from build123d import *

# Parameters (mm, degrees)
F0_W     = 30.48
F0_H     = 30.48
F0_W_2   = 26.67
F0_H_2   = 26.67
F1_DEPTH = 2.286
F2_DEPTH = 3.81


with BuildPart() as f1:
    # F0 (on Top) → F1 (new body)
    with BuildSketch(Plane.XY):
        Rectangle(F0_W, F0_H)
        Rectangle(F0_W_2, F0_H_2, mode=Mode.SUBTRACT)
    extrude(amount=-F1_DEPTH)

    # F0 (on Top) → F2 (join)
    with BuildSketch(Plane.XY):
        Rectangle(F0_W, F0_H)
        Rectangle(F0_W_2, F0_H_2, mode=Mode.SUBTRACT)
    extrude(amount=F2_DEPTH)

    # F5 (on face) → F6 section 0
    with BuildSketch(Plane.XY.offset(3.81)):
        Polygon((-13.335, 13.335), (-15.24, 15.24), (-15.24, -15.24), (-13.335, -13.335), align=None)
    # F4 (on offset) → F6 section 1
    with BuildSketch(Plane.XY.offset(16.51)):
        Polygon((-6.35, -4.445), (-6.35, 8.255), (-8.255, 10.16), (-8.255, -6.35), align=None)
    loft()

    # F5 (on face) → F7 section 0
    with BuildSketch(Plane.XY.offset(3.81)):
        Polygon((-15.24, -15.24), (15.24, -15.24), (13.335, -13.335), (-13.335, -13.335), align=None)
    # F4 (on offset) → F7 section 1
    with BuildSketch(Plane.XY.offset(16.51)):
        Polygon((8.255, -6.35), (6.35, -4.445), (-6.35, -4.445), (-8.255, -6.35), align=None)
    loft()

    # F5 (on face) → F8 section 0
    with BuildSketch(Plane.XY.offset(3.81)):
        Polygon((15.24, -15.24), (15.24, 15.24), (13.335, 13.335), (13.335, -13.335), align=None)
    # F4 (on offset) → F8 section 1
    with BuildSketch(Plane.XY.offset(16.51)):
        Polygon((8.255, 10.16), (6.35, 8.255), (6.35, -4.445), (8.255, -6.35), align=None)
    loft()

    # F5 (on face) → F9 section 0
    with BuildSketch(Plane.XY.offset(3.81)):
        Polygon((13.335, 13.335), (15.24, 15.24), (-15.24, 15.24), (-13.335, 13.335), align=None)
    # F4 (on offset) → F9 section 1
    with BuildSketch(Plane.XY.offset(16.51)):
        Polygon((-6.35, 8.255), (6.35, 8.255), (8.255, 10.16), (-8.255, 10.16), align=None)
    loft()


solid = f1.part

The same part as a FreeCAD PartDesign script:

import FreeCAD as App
import Part
import Sketcher
Q = App.Units.Quantity


def add_polygon(sketch, points):
    """Adds a closed chain of lines whose ends are joined by coincident constraints."""
    first, n = sketch.GeometryCount, len(points)
    for a, b in zip(points, points[1:] + points[:1]):
        sketch.addGeometry(Part.LineSegment(App.Vector(*a, 0), App.Vector(*b, 0)), False)
    for i in range(n):
        sketch.addConstraint(Sketcher.Constraint("Coincident", first + i, 2, first + (i + 1) % n, 1))

doc = App.newDocument("Part")
body = doc.addObject("PartDesign::Body", "Body")

# Sketch on XY plane
sketch1 = body.newObject("Sketcher::SketchObject", "Sketch")
sketch1.AttachmentSupport = (doc.getObject("XY_Plane"), [""])
sketch1.MapMode = "FlatFace"
add_polygon(sketch1, [(-15, 15), (-15, -15), (15, -15), (15, 15)])  # lines 0-3
add_polygon(sketch1, [(13, -13), (-13, -13), (-13, 13), (13, 13)])  # lines 4-7
sketch1.addConstraint(Sketcher.Constraint("Vertical", 0))
sketch1.addConstraint(Sketcher.Constraint("Horizontal", 1))
sketch1.addConstraint(Sketcher.Constraint("Vertical", 2))
sketch1.addConstraint(Sketcher.Constraint("Horizontal", 3))
sketch1.addConstraint(Sketcher.Constraint("Horizontal", 4))
sketch1.addConstraint(Sketcher.Constraint("Vertical", 5))
sketch1.addConstraint(Sketcher.Constraint("Horizontal", 6))
sketch1.addConstraint(Sketcher.Constraint("Vertical", 7))
sketch1.addConstraint(Sketcher.Constraint("Symmetric", 0, 2, 2, 2, -1, 1))
sketch1.addConstraint(Sketcher.Constraint("Symmetric", 4, 2, 6, 2, -1, 1))
sketch1.addConstraint(Sketcher.Constraint("Equal", 3, 0))
sketch1.addConstraint(Sketcher.Constraint("Equal", 6, 5))
sketch1.addConstraint(Sketcher.Constraint("DistanceX", 1, 1, 1, 2, Q("1.2 in")))
sketch1.addConstraint(Sketcher.Constraint("DistanceX", 4, 2, 4, 1, Q("1.05 in")))
pad1 = body.newObject("PartDesign::Pad", "Pad")
pad1.Profile = sketch1
pad1.Length = Q("0.09 in")
pad1.Reversed = True

# Sketch on XY plane
sketch2 = body.newObject("Sketcher::SketchObject", "Sketch001")
sketch2.AttachmentSupport = (doc.getObject("XY_Plane"), [""])
sketch2.MapMode = "FlatFace"
add_polygon(sketch2, [(-15, 15), (-15, -15), (15, -15), (15, 15)])  # lines 0-3
add_polygon(sketch2, [(13, -13), (-13, -13), (-13, 13), (13, 13)])  # lines 4-7
sketch2.addConstraint(Sketcher.Constraint("Vertical", 0))
sketch2.addConstraint(Sketcher.Constraint("Horizontal", 1))
sketch2.addConstraint(Sketcher.Constraint("Vertical", 2))
sketch2.addConstraint(Sketcher.Constraint("Horizontal", 3))
sketch2.addConstraint(Sketcher.Constraint("Horizontal", 4))
sketch2.addConstraint(Sketcher.Constraint("Vertical", 5))
sketch2.addConstraint(Sketcher.Constraint("Horizontal", 6))
sketch2.addConstraint(Sketcher.Constraint("Vertical", 7))
sketch2.addConstraint(Sketcher.Constraint("Symmetric", 0, 2, 2, 2, -1, 1))
sketch2.addConstraint(Sketcher.Constraint("Symmetric", 4, 2, 6, 2, -1, 1))
sketch2.addConstraint(Sketcher.Constraint("Equal", 3, 0))
sketch2.addConstraint(Sketcher.Constraint("Equal", 6, 5))
sketch2.addConstraint(Sketcher.Constraint("DistanceX", 1, 1, 1, 2, Q("1.2 in")))
sketch2.addConstraint(Sketcher.Constraint("DistanceX", 4, 2, 4, 1, Q("1.05 in")))
pad2 = body.newObject("PartDesign::Pad", "Pad001")
pad2.Profile = sketch2
pad2.Length = Q("0.15 in")

# Sketch on XY plane
sketch3 = body.newObject("Sketcher::SketchObject", "Sketch002")
sketch3.AttachmentSupport = (doc.getObject("XY_Plane"), [""])
sketch3.MapMode = "FlatFace"
sketch3.AttachmentOffset = App.Placement(App.Vector(0, 0, 0.15 * 25.4), App.Rotation())
add_polygon(sketch3, [(-13.3, 13.3), (-15.2, 15.2), (-15.2, -15.2), (-13.3, -13.3)])  # lines 0-3
sketch3.addConstraint(Sketcher.Constraint("Vertical", 1))
sketch3.addConstraint(Sketcher.Constraint("Vertical", 3))
sketch3.addConstraint(Sketcher.Constraint("Perpendicular", 0, 2))
sketch3.addConstraint(Sketcher.Constraint("Equal", 0, 2))
sketch3.addConstraint(Sketcher.Constraint("DistanceY", 1, 2, 1, 1, Q("1.2 in")))
sketch3.addConstraint(Sketcher.Constraint("DistanceY", 3, 1, 3, 2, Q("1.05 in")))
sketch3.addConstraint(Sketcher.Constraint("DistanceX", 0, 2, -1, 1, Q("0.6 in")))
sketch3.addConstraint(Sketcher.Constraint("DistanceY", -1, 1, 0, 2, Q("0.6 in")))

# Sketch on XY plane
sketch4 = body.newObject("Sketcher::SketchObject", "Sketch003")
sketch4.AttachmentSupport = (doc.getObject("XY_Plane"), [""])
sketch4.MapMode = "FlatFace"
sketch4.AttachmentOffset = App.Placement(App.Vector(0, 0, 0.65 * 25.4), App.Rotation())
add_polygon(sketch4, [(-6.3, -4.4), (-6.3, 8.3), (-8.3, 10.2), (-8.3, -6.3)])  # lines 0-3
sketch4.addConstraint(Sketcher.Constraint("Vertical", 0))
sketch4.addConstraint(Sketcher.Constraint("Vertical", 2))
sketch4.addConstraint(Sketcher.Constraint("Perpendicular", 1, 3))
sketch4.addConstraint(Sketcher.Constraint("Equal", 1, 3))
sketch4.addConstraint(Sketcher.Constraint("DistanceY", 0, 1, 0, 2, Q("0.5 in")))
sketch4.addConstraint(Sketcher.Constraint("DistanceY", 2, 2, 2, 1, Q("0.65 in")))
sketch4.addConstraint(Sketcher.Constraint("DistanceY", -1, 1, 1, 2, Q("0.4 in")))
sketch4.addConstraint(Sketcher.Constraint("DistanceX", 0, 2, -1, 1, Q("0.25 in")))

additiveloft = body.newObject("PartDesign::AdditiveLoft", "AdditiveLoft")
additiveloft.Profile = sketch3
additiveloft.Sections = [sketch4]

# Sketch on XY plane
sketch5 = body.newObject("Sketcher::SketchObject", "Sketch004")
sketch5.AttachmentSupport = (doc.getObject("XY_Plane"), [""])
sketch5.MapMode = "FlatFace"
sketch5.AttachmentOffset = App.Placement(App.Vector(0, 0, 0.15 * 25.4), App.Rotation())
add_polygon(sketch5, [(-15.2, -15.2), (15.2, -15.2), (13.3, -13.3), (-13.3, -13.3)])  # lines 0-3
sketch5.addConstraint(Sketcher.Constraint("Horizontal", 0))
sketch5.addConstraint(Sketcher.Constraint("Horizontal", 2))
sketch5.addConstraint(Sketcher.Constraint("Perpendicular", 1, 3))
sketch5.addConstraint(Sketcher.Constraint("Equal", 1, 3))
sketch5.addConstraint(Sketcher.Constraint("DistanceX", 0, 1, 0, 2, Q("1.2 in")))
sketch5.addConstraint(Sketcher.Constraint("DistanceX", 2, 2, 2, 1, Q("1.05 in")))
sketch5.addConstraint(Sketcher.Constraint("DistanceX", -1, 1, 0, 2, Q("0.6 in")))
sketch5.addConstraint(Sketcher.Constraint("DistanceY", 0, 2, -1, 1, Q("0.6 in")))

# Sketch on XY plane
sketch6 = body.newObject("Sketcher::SketchObject", "Sketch005")
sketch6.AttachmentSupport = (doc.getObject("XY_Plane"), [""])
sketch6.MapMode = "FlatFace"
sketch6.AttachmentOffset = App.Placement(App.Vector(0, 0, 0.65 * 25.4), App.Rotation())
add_polygon(sketch6, [(8.3, -6.3), (6.3, -4.4), (-6.3, -4.4), (-8.3, -6.3)])  # lines 0-3
sketch6.addConstraint(Sketcher.Constraint("Horizontal", 1))
sketch6.addConstraint(Sketcher.Constraint("Horizontal", 3))
sketch6.addConstraint(Sketcher.Constraint("Perpendicular", 0, 2))
sketch6.addConstraint(Sketcher.Constraint("Equal", 0, 2))
sketch6.addConstraint(Sketcher.Constraint("DistanceX", 1, 2, 1, 1, Q("0.5 in")))
sketch6.addConstraint(Sketcher.Constraint("DistanceX", 3, 1, 3, 2, Q("0.65 in")))
sketch6.addConstraint(Sketcher.Constraint("DistanceX", -1, 1, 0, 2, Q("0.25 in")))
sketch6.addConstraint(Sketcher.Constraint("DistanceY", 2, 2, -1, 1, Q("0.25 in")))

additiveloft2 = body.newObject("PartDesign::AdditiveLoft", "AdditiveLoft001")
additiveloft2.Profile = sketch5
additiveloft2.Sections = [sketch6]

# Sketch on XY plane
sketch7 = body.newObject("Sketcher::SketchObject", "Sketch006")
sketch7.AttachmentSupport = (doc.getObject("XY_Plane"), [""])
sketch7.MapMode = "FlatFace"
sketch7.AttachmentOffset = App.Placement(App.Vector(0, 0, 0.15 * 25.4), App.Rotation())
add_polygon(sketch7, [(15.2, -15.2), (15.2, 15.2), (13.3, 13.3), (13.3, -13.3)])  # lines 0-3
sketch7.addConstraint(Sketcher.Constraint("Vertical", 0))
sketch7.addConstraint(Sketcher.Constraint("Vertical", 2))
sketch7.addConstraint(Sketcher.Constraint("Perpendicular", 1, 3))
sketch7.addConstraint(Sketcher.Constraint("Equal", 1, 3))
sketch7.addConstraint(Sketcher.Constraint("DistanceY", 0, 1, 0, 2, Q("1.2 in")))
sketch7.addConstraint(Sketcher.Constraint("DistanceY", 2, 2, 2, 1, Q("1.05 in")))
sketch7.addConstraint(Sketcher.Constraint("DistanceX", -1, 1, 0, 2, Q("0.6 in")))
sketch7.addConstraint(Sketcher.Constraint("DistanceY", -1, 1, 0, 2, Q("0.6 in")))

# Sketch on XY plane
sketch8 = body.newObject("Sketcher::SketchObject", "Sketch007")
sketch8.AttachmentSupport = (doc.getObject("XY_Plane"), [""])
sketch8.MapMode = "FlatFace"
sketch8.AttachmentOffset = App.Placement(App.Vector(0, 0, 0.65 * 25.4), App.Rotation())
add_polygon(sketch8, [(8.3, 10.2), (6.3, 8.3), (6.3, -4.4), (8.3, -6.3)])  # lines 0-3
sketch8.addConstraint(Sketcher.Constraint("Vertical", 1))
sketch8.addConstraint(Sketcher.Constraint("Vertical", 3))
sketch8.addConstraint(Sketcher.Constraint("Perpendicular", 0, 2))
sketch8.addConstraint(Sketcher.Constraint("Equal", 0, 2))
sketch8.addConstraint(Sketcher.Constraint("DistanceY", 1, 2, 1, 1, Q("0.5 in")))
sketch8.addConstraint(Sketcher.Constraint("DistanceY", 3, 1, 3, 2, Q("0.65 in")))
sketch8.addConstraint(Sketcher.Constraint("DistanceY", -1, 1, 3, 2, Q("0.4 in")))
sketch8.addConstraint(Sketcher.Constraint("DistanceX", -1, 1, 0, 2, Q("0.25 in")))

additiveloft3 = body.newObject("PartDesign::AdditiveLoft", "AdditiveLoft002")
additiveloft3.Profile = sketch7
additiveloft3.Sections = [sketch8]

# Sketch on XY plane
sketch9 = body.newObject("Sketcher::SketchObject", "Sketch008")
sketch9.AttachmentSupport = (doc.getObject("XY_Plane"), [""])
sketch9.MapMode = "FlatFace"
sketch9.AttachmentOffset = App.Placement(App.Vector(0, 0, 0.15 * 25.4), App.Rotation())
add_polygon(sketch9, [(13.3, 13.3), (15.2, 15.2), (-15.2, 15.2), (-13.3, 13.3)])  # lines 0-3
sketch9.addConstraint(Sketcher.Constraint("Horizontal", 1))
sketch9.addConstraint(Sketcher.Constraint("Horizontal", 3))
sketch9.addConstraint(Sketcher.Constraint("Perpendicular", 0, 2))
sketch9.addConstraint(Sketcher.Constraint("Equal", 0, 2))
sketch9.addConstraint(Sketcher.Constraint("DistanceX", 1, 2, 1, 1, Q("1.2 in")))
sketch9.addConstraint(Sketcher.Constraint("DistanceX", 3, 1, 3, 2, Q("1.05 in")))
sketch9.addConstraint(Sketcher.Constraint("DistanceX", -1, 1, 0, 2, Q("0.6 in")))
sketch9.addConstraint(Sketcher.Constraint("DistanceY", -1, 1, 0, 2, Q("0.6 in")))

# Sketch on XY plane
sketch10 = body.newObject("Sketcher::SketchObject", "Sketch009")
sketch10.AttachmentSupport = (doc.getObject("XY_Plane"), [""])
sketch10.MapMode = "FlatFace"
sketch10.AttachmentOffset = App.Placement(App.Vector(0, 0, 0.65 * 25.4), App.Rotation())
add_polygon(sketch10, [(-6.3, 8.3), (6.3, 8.3), (8.3, 10.2), (-8.3, 10.2)])  # lines 0-3
sketch10.addConstraint(Sketcher.Constraint("Horizontal", 0))
sketch10.addConstraint(Sketcher.Constraint("Horizontal", 2))
sketch10.addConstraint(Sketcher.Constraint("Perpendicular", 1, 3))
sketch10.addConstraint(Sketcher.Constraint("Equal", 1, 3))
sketch10.addConstraint(Sketcher.Constraint("DistanceX", 0, 1, 0, 2, Q("0.5 in")))
sketch10.addConstraint(Sketcher.Constraint("DistanceX", 2, 2, 2, 1, Q("0.65 in")))
sketch10.addConstraint(Sketcher.Constraint("DistanceY", -1, 1, 1, 2, Q("0.4 in")))
sketch10.addConstraint(Sketcher.Constraint("DistanceX", -1, 1, 0, 2, Q("0.25 in")))

additiveloft4 = body.newObject("PartDesign::AdditiveLoft", "AdditiveLoft003")
additiveloft4.Profile = sketch9
additiveloft4.Sections = [sketch10]

doc.recompute()
